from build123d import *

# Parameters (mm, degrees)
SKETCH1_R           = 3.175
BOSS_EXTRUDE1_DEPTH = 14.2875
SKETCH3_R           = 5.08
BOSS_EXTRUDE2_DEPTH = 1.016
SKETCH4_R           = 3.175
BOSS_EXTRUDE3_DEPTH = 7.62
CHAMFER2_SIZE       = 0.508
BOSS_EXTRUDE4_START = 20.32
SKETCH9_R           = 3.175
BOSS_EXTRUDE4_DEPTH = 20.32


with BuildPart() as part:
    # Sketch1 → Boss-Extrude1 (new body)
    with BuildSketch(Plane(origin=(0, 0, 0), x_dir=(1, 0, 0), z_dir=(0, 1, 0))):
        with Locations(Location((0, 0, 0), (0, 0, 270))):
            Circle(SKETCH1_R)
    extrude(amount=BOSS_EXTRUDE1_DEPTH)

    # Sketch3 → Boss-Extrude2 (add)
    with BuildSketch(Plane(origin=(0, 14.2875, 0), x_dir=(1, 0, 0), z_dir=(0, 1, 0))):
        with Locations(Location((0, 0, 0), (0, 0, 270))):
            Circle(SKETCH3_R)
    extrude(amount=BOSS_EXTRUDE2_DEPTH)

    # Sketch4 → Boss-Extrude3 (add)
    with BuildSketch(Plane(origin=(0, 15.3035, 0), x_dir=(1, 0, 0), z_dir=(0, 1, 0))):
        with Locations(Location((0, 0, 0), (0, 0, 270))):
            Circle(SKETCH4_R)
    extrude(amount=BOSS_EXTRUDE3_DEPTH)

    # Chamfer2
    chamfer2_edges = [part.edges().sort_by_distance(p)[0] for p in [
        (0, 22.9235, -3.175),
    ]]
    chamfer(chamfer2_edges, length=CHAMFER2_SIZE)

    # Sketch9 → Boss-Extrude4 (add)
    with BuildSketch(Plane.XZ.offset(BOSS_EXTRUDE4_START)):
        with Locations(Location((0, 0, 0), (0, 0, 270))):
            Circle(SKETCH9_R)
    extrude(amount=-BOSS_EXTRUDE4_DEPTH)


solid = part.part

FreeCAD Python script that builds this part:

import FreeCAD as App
import Part
import Sketcher

V = App.Vector
Q = App.Units.Quantity


def edges_at(feature, points):
    """Names of the edges that pass closest to the given points."""
    edges = feature.Shape.Edges
    near = lambda p: min(range(len(edges)), key=lambda i: edges[i].distToShape(Part.Vertex(*p))[0])
    return sorted({f"Edge{near(p) + 1}" for p in points})

doc = App.newDocument("Part")
body = doc.addObject("PartDesign::Body", "Body")

# Sketch on XZ plane
sketch1 = doc.addObject("Sketcher::SketchObject", "Sketch")
body.addObject(sketch1)
sketch1.AttachmentSupport = (doc.XZ_Plane, [""])
sketch1.MapMode = "FlatFace"
sketch1.addGeometry(Part.Circle(V(0, 0, 0), V(0, 0, 1), 3.175), False)
sketch1.addConstraint([
    Sketcher.Constraint("Coincident", 0, 3, -1, 1),
    Sketcher.Constraint("Diameter", 0, Q("0.25 in")),
])
pad1 = doc.addObject("PartDesign::Pad", "Pad")
body.addObject(pad1)
pad1.Profile = sketch1
pad1.Length = Q("0.5625 in")
pad1.Reversed = True

# Sketch on XZ plane
sketch2 = doc.addObject("Sketcher::SketchObject", "Sketch001")
body.addObject(sketch2)
sketch2.AttachmentSupport = (doc.XZ_Plane, [""])
sketch2.MapMode = "FlatFace"
sketch2.AttachmentOffset = App.Placement(V(0, 0, -0.5625 * 25.4), App.Rotation())
sketch2.addGeometry(Part.Circle(V(0, 0, 0), V(0, 0, 1), 5.08), False)
sketch2.addConstraint([
    Sketcher.Constraint("Coincident", 0, 3, -1, 1),
    Sketcher.Constraint("Diameter", 0, Q("0.4 in")),
])
pad2 = doc.addObject("PartDesign::Pad", "Pad001")
body.addObject(pad2)
pad2.Profile = sketch2
pad2.Length = Q("0.04 in")
pad2.Reversed = True

# Sketch on XZ plane
sketch3 = doc.addObject("Sketcher::SketchObject", "Sketch002")
body.addObject(sketch3)
sketch3.AttachmentSupport = (doc.XZ_Plane, [""])
sketch3.MapMode = "FlatFace"
sketch3.AttachmentOffset = App.Placement(V(0, 0, -0.6025 * 25.4), App.Rotation())
sketch3.addGeometry(Part.Circle(V(0, 0, 0), V(0, 0, 1), 3.175), False)
sketch3.addConstraint([
    Sketcher.Constraint("Coincident", 0, 3, -1, 1),
    Sketcher.Constraint("Diameter", 0, Q("0.25 in")),
])
pad3 = doc.addObject("PartDesign::Pad", "Pad002")
body.addObject(pad3)
pad3.Profile = sketch3
pad3.Length = Q("0.3 in")
pad3.Reversed = True
doc.recompute()

chamfer = doc.addObject("PartDesign::Chamfer", "Chamfer")
body.addObject(chamfer)
chamfer.Base = (pad3, edges_at(pad3, [(0, 22.924, -3.175)]))
chamfer.Size = Q("0.02 in")

# Sketch on XZ plane
sketch4 = doc.addObject("Sketcher::SketchObject", "Sketch003")
body.addObject(sketch4)
sketch4.AttachmentSupport = (doc.XZ_Plane, [""])
sketch4.MapMode = "FlatFace"
sketch4.AttachmentOffset = App.Placement(V(0, 0, 0.8 * 25.4), App.Rotation())
sketch4.addGeometry(Part.Circle(V(0, 0, 0), V(0, 0, 1), 3.175), False)
sketch4.addConstraint([
    Sketcher.Constraint("Coincident", 0, 3, -1, 1),
    Sketcher.Constraint("Diameter", 0, Q("0.25 in")),
])
pad4 = doc.addObject("PartDesign::Pad", "Pad003")
body.addObject(pad4)
pad4.Profile = sketch4
pad4.Length = Q("0.8 in")
pad4.Reversed = True

doc.recompute()
